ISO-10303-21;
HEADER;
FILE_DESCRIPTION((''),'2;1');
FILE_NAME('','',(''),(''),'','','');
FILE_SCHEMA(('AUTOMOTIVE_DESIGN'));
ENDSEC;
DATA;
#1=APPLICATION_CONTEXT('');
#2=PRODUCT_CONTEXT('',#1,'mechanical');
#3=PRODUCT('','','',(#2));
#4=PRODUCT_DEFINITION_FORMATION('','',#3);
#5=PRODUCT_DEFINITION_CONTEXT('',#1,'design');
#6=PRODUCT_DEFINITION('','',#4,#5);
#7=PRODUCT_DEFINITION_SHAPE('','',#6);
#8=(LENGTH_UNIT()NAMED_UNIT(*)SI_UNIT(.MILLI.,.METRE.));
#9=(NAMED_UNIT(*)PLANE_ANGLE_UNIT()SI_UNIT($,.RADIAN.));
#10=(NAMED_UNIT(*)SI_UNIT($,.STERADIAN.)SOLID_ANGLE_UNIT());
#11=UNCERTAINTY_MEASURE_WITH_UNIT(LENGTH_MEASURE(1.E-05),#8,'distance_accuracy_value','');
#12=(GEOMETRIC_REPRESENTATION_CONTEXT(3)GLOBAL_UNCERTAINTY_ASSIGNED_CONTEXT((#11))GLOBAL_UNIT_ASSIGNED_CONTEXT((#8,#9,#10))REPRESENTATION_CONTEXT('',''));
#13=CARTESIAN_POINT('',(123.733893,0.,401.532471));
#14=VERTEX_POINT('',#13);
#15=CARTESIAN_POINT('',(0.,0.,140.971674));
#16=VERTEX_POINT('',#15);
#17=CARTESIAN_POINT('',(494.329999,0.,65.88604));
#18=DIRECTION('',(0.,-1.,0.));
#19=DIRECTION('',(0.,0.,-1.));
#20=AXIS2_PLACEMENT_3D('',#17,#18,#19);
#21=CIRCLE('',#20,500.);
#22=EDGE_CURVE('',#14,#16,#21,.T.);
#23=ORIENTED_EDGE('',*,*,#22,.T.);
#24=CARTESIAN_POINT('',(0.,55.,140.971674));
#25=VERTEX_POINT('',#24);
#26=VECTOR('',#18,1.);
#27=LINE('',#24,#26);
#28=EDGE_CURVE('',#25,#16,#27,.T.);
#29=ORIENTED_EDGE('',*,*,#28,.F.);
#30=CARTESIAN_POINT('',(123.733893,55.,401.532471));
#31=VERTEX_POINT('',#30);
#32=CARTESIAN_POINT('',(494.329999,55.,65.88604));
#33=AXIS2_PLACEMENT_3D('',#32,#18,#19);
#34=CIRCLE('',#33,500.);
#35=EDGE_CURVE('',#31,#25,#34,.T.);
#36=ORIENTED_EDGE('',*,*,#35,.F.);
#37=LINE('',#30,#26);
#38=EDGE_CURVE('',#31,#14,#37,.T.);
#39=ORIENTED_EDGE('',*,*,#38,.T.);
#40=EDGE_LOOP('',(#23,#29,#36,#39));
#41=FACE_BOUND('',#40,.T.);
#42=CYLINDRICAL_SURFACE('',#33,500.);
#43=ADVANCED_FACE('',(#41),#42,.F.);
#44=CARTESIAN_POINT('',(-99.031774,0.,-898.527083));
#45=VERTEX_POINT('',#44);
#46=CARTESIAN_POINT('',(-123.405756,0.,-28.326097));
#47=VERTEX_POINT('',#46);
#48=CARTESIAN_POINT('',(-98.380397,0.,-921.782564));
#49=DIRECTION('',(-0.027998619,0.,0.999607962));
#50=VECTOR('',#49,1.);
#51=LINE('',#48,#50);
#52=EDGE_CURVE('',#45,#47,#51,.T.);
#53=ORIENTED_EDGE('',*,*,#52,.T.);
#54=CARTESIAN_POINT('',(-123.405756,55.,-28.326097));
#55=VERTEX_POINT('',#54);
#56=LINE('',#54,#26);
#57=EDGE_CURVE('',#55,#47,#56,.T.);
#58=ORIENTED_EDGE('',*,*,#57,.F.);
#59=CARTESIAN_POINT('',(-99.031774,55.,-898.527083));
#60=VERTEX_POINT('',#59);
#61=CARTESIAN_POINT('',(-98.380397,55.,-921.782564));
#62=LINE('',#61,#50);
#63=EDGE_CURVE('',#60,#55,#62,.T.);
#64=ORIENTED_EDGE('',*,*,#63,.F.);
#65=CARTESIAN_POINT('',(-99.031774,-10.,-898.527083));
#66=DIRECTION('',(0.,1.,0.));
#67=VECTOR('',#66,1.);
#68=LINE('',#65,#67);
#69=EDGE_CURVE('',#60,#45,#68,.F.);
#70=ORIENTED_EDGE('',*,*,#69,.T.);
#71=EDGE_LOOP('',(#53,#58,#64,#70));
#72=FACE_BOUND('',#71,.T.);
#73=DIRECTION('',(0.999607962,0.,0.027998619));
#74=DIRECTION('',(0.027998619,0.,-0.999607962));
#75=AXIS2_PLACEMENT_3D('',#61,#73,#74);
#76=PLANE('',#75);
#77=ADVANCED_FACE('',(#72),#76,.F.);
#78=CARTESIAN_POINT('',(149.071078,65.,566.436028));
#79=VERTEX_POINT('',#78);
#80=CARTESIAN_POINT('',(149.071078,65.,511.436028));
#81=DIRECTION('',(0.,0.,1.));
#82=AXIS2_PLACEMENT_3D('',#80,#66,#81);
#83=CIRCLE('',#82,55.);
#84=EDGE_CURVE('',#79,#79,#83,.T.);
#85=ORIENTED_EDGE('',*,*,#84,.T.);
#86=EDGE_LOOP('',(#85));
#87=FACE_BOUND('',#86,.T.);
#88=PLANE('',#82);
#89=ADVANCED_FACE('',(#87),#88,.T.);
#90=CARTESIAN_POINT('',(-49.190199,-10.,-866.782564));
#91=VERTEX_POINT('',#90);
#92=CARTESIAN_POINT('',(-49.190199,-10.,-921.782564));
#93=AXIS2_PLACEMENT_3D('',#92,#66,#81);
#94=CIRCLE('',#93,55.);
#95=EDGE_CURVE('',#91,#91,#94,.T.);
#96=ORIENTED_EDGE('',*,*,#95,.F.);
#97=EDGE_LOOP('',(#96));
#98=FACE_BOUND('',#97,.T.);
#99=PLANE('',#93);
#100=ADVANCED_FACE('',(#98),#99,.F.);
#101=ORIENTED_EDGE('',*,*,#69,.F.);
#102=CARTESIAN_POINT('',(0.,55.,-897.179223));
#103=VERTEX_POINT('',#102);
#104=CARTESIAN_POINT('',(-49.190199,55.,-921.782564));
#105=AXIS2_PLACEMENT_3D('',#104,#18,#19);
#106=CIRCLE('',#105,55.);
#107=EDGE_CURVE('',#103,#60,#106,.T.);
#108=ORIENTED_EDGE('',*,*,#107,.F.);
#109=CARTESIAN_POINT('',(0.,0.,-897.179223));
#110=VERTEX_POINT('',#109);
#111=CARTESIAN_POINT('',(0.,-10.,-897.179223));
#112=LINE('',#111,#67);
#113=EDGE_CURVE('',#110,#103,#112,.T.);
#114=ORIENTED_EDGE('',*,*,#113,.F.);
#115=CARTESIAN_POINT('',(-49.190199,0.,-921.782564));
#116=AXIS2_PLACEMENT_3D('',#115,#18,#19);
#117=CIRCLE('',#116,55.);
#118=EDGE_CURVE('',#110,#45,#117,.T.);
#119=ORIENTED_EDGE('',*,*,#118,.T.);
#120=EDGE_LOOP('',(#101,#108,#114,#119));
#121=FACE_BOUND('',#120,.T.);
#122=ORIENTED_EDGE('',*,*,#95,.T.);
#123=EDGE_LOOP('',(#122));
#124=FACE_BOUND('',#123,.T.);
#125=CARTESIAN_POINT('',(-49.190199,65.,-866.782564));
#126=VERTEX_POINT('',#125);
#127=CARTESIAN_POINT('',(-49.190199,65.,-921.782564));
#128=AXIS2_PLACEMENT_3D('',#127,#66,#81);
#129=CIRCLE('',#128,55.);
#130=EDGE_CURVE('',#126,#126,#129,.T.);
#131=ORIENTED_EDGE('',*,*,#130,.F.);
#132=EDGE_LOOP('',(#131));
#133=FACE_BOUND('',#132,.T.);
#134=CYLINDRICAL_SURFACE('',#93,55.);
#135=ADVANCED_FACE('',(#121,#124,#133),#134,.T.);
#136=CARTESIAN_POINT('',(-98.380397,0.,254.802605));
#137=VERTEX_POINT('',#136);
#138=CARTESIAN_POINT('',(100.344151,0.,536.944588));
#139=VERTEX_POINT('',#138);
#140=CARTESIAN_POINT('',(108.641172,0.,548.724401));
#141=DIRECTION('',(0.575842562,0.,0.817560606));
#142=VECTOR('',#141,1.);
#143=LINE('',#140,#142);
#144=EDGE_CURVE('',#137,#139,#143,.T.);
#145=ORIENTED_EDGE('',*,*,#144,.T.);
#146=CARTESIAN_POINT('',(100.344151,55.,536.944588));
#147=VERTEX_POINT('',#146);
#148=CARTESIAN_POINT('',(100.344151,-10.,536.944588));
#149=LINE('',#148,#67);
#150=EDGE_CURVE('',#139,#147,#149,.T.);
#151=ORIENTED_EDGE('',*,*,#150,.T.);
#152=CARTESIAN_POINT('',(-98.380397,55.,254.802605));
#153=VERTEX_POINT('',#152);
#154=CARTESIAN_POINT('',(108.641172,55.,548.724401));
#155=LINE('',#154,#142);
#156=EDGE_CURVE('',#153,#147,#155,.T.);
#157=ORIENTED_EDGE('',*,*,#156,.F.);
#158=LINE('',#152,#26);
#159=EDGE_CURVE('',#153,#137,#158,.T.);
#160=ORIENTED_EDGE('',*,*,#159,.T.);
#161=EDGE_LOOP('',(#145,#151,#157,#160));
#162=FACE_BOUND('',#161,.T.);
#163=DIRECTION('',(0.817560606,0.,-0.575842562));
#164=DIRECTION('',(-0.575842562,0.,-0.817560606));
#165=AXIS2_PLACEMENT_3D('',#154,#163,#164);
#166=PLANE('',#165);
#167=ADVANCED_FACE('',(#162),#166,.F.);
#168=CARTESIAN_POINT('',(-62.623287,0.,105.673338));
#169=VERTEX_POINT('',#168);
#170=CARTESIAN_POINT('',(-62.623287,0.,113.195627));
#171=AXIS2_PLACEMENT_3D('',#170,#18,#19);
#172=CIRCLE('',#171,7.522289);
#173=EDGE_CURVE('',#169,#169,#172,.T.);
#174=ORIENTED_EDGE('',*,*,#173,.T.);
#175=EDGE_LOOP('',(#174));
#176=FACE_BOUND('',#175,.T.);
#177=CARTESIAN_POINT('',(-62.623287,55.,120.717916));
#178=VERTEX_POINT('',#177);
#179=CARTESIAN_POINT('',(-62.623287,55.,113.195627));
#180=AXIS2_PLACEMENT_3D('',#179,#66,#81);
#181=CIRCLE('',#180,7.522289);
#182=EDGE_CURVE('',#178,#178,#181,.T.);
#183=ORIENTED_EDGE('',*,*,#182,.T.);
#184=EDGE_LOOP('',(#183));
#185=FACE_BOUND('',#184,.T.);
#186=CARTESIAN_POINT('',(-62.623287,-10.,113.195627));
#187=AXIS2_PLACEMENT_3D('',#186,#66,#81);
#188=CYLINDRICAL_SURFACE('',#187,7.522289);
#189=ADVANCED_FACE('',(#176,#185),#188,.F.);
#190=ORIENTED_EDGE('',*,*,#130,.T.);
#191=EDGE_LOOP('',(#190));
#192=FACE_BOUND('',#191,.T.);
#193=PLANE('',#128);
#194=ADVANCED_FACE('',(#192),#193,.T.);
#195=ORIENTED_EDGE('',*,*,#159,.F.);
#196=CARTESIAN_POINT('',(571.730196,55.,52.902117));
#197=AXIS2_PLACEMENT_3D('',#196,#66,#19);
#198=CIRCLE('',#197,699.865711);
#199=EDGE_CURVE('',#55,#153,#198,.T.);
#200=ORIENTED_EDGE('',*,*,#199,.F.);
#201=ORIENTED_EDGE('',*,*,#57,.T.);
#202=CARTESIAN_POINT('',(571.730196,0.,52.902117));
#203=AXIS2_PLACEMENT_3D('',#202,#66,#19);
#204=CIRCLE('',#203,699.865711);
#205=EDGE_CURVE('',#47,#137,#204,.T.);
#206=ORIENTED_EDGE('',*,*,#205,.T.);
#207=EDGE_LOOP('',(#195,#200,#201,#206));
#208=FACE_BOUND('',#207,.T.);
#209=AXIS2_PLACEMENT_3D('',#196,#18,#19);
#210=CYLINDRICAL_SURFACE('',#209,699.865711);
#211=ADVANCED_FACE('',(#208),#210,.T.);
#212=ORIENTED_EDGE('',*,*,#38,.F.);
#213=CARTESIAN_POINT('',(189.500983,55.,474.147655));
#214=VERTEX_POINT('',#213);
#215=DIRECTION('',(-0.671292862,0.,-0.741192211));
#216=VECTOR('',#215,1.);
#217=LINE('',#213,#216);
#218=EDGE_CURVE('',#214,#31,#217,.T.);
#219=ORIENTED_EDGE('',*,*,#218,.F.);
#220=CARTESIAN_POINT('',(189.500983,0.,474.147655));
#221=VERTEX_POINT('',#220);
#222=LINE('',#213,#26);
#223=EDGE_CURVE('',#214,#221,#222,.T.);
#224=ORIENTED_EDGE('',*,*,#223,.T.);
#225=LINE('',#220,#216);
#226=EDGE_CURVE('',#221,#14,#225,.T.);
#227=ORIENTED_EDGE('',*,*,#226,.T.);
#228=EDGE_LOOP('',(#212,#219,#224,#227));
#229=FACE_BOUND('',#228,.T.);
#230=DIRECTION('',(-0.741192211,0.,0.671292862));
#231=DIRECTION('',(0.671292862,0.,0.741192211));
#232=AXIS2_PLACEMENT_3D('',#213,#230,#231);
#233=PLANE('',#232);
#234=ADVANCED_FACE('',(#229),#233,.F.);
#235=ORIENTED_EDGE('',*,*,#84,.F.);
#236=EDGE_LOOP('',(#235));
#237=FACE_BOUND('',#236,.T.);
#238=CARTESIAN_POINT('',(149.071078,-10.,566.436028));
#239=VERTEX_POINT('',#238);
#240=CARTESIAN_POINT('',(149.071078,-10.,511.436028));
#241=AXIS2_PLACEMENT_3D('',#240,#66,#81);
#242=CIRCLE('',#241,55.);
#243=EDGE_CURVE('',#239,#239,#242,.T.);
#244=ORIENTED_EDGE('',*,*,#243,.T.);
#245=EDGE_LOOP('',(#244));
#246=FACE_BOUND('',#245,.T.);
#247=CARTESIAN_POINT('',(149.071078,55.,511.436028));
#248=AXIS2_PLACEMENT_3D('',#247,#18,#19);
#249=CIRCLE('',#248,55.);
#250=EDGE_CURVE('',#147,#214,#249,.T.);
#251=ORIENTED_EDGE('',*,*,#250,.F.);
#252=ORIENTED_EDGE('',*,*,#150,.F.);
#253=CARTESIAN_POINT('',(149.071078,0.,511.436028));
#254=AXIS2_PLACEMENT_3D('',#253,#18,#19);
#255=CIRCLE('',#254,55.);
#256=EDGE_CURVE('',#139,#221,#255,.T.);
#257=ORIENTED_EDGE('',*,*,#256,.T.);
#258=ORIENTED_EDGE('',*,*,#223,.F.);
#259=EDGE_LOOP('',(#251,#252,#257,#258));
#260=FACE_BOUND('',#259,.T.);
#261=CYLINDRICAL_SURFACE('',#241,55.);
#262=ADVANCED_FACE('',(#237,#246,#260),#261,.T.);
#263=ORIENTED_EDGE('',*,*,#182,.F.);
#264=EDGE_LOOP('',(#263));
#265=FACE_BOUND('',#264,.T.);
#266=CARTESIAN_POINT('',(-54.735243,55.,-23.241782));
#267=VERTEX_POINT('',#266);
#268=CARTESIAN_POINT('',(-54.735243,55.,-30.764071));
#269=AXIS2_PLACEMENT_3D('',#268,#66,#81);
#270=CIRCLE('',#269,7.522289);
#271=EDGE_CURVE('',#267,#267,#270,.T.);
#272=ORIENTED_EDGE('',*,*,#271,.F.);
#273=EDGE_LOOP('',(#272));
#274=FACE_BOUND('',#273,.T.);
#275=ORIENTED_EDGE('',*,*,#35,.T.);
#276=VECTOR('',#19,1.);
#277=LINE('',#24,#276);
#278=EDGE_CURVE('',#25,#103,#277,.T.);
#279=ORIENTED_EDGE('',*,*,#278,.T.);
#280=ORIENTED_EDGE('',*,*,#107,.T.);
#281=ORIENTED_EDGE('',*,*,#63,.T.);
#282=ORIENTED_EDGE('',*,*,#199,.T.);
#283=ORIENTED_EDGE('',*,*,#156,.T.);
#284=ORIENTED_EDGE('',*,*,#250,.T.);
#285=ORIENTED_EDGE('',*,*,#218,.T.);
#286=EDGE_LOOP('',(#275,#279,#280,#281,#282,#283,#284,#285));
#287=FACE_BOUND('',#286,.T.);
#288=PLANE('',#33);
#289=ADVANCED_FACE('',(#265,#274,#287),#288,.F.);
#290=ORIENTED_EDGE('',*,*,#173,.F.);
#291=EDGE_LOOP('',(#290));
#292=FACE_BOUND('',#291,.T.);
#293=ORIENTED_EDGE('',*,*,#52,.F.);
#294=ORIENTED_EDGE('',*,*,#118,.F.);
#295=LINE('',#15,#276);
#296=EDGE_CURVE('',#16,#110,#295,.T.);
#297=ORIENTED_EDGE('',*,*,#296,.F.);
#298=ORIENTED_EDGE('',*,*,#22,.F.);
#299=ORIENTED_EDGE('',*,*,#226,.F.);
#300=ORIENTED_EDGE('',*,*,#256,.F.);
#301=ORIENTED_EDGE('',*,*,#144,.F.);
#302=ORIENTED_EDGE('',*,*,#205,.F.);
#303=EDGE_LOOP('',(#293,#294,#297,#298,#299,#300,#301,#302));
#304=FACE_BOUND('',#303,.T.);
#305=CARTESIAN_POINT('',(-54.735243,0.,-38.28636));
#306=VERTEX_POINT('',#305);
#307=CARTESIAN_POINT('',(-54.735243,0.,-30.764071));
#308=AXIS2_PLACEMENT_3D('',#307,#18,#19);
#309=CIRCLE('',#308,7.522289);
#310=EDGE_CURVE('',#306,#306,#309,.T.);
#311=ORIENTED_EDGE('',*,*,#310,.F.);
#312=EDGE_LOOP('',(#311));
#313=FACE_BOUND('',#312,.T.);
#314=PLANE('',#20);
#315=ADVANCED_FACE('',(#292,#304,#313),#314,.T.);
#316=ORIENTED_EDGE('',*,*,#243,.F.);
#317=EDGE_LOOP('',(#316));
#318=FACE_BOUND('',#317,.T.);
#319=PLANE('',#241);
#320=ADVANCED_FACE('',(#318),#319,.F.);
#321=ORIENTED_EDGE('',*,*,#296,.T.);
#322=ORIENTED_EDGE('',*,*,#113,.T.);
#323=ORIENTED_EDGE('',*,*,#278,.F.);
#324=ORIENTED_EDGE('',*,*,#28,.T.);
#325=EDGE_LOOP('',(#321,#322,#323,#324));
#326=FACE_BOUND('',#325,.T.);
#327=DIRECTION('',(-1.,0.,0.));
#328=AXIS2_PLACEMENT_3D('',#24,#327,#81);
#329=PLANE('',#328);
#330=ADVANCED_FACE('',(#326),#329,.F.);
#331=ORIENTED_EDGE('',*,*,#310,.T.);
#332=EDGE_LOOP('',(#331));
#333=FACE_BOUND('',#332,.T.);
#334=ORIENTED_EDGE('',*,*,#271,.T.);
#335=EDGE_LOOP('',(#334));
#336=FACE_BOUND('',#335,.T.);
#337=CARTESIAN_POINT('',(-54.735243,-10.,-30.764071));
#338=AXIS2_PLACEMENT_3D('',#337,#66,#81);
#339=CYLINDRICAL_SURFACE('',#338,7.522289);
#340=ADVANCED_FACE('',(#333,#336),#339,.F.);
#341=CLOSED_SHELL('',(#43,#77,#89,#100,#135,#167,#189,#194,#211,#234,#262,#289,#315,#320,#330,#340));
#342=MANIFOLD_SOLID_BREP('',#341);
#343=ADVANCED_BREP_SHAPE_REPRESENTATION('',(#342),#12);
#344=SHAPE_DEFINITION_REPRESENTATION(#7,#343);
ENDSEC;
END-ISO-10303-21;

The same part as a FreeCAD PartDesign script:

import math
import FreeCAD as App
import Part
import Sketcher
from FreeCAD import Vector
Q = App.Units.Quantity

doc = App.newDocument("Part")
body = doc.addObject("PartDesign::Body", "Body")

sketch1 = body.newObject("Sketcher::SketchObject", "Sketch")
sketch1.AttachmentSupport = (doc.getObject("XZ_Plane"), [""])
sketch1.MapMode = "FlatFace"
sketch1.addGeometry(Part.LineSegment(Vector(0, 140.971674, 0), Vector(0, -921.782564, 0)), False)
sketch1.addGeometry(Part.LineSegment(Vector(0, -921.782564, 0), Vector(-98.380397, -921.782564, 0)), False)
sketch1.addGeometry(Part.LineSegment(Vector(-98.380397, -921.782564, 0), Vector(-123.405756, -28.326097, 0)), False)
sketch1.addGeometry(Part.ArcOfCircle(Part.Circle(Vector(571.730196, 52.902117, 0), Vector(0, 0, 1), 699.865711), math.radians(163.232746), math.radians(186.664916)), False)
sketch1.addGeometry(Part.LineSegment(Vector(-98.380397, 254.802605, 0), Vector(108.641172, 548.724401, 0)), False)
sketch1.addGeometry(Part.LineSegment(Vector(108.641172, 548.724401, 0), Vector(189.500983, 474.147655, 0)), False)
sketch1.addGeometry(Part.LineSegment(Vector(189.500983, 474.147655, 0), Vector(123.733893, 401.532471, 0)), False)
sketch1.addGeometry(Part.ArcOfCircle(Part.Circle(Vector(494.329999, 65.88604, 0), Vector(0, 0, 1), 500), math.radians(137.833073), math.radians(171.363148)), False)
sketch1.addConstraint(Sketcher.Constraint("Coincident", 0, 2, 1, 1))
sketch1.addConstraint(Sketcher.Constraint("Coincident", 1, 2, 2, 1))
sketch1.addConstraint(Sketcher.Constraint("Coincident", 2, 2, 3, 2))
sketch1.addConstraint(Sketcher.Constraint("Coincident", 3, 1, 4, 1))
sketch1.addConstraint(Sketcher.Constraint("Coincident", 4, 2, 5, 1))
sketch1.addConstraint(Sketcher.Constraint("Coincident", 5, 2, 6, 1))
sketch1.addConstraint(Sketcher.Constraint("Tangent", 6, 2, 7, 1))
sketch1.addConstraint(Sketcher.Constraint("Coincident", 7, 2, 0, 1))
sketch1.addConstraint(Sketcher.Constraint("Vertical", 0))
sketch1.addConstraint(Sketcher.Constraint("Horizontal", 1))
sketch1.addConstraint(Sketcher.Constraint("PointOnObject", 0, 2, -2))
sketch1.addConstraint(Sketcher.Constraint("Vertical", 1, 2, 3, 1))
sketch1.addConstraint(Sketcher.Constraint("Radius", 7, Q("500 mm")))
sketch1.addConstraint(Sketcher.Constraint("Distance", 5, Q("110 mm")))
sketch1.addConstraint(Sketcher.Constraint("DistanceX", -1, 1, 7, 3, Q("494.329999 mm")))
sketch1.addConstraint(Sketcher.Constraint("Radius", 3, Q("699.865711 mm")))
sketch1.addConstraint(Sketcher.Constraint("DistanceY", -1, 1, 4, 2, Q("548.724401 mm")))
sketch1.addConstraint(Sketcher.Constraint("DistanceY", 2, 2, 4, 2, Q("577.050498 mm")))
sketch1.addConstraint(Sketcher.Constraint("DistanceX", 1, 2, 1, 1, Q("98.380397 mm")))
sketch1.addConstraint(Sketcher.Constraint("DistanceY", 0, 2, 0, 1, Q("1062.754238 mm")))
sketch1.addConstraint(Sketcher.Constraint("DistanceY", -1, 1, 7, 3, Q("65.88604 mm")))
sketch1.addConstraint(Sketcher.Constraint("DistanceY", -1, 1, 6, 2, Q("401.532471 mm")))
sketch1.addConstraint(Sketcher.Constraint("DistanceY", 0, 2, 3, 3, Q("974.684681 mm")))
sketch1.addConstraint(Sketcher.Constraint("DistanceX", 2, 2, 1, 2, Q("25.025358 mm")))
sketch1.addConstraint(Sketcher.Constraint("DistanceX", 2, 2, 4, 2, Q("232.046928 mm")))
pad1 = body.newObject("PartDesign::Pad", "Pad")
pad1.Profile = sketch1
pad1.Length = 55
pad1.Reversed = True

sketch2 = body.newObject("Sketcher::SketchObject", "Sketch001")
sketch2.AttachmentSupport = (doc.getObject("XZ_Plane"), [""])
sketch2.MapMode = "FlatFace"
sketch2.AttachmentOffset = App.Placement(Vector(0, 0, -55), App.Rotation())
sketch2.addGeometry(Part.Circle(Vector(149.071078, 511.436028, 0), Vector(0, 0, 1), 55), False)
sketch2.addGeometry(Part.Circle(Vector(-49.190199, -921.782564, 0), Vector(0, 0, 1), 55), False)
sketch2.addConstraint(Sketcher.Constraint("Equal", 0, 1))
sketch2.addConstraint(Sketcher.Constraint("Diameter", 0, Q("110 mm")))
sketch2.addConstraint(Sketcher.Constraint("DistanceX", 1, 3, -1, 1, Q("49.190199 mm")))
sketch2.addConstraint(Sketcher.Constraint("DistanceY", 1, 3, 0, 3, Q("1433.218591 mm")))
sketch2.addConstraint(Sketcher.Constraint("DistanceX", -1, 1, 0, 3, Q("149.071078 mm")))
sketch2.addConstraint(Sketcher.Constraint("DistanceY", -1, 1, 0, 3, Q("511.436028 mm")))
pad2 = body.newObject("PartDesign::Pad", "Pad001")
pad2.Profile = sketch2
pad2.Type = "TwoLengths"
pad2.Length = 10
pad2.Length2 = 65
pad2.Reversed = True

sketch3 = body.newObject("Sketcher::SketchObject", "Sketch002")
sketch3.AttachmentSupport = (doc.getObject("XZ_Plane"), [""])
sketch3.MapMode = "FlatFace"
sketch3.AttachmentOffset = App.Placement(Vector(0, 0, -55), App.Rotation())
sketch3.addGeometry(Part.Circle(Vector(-54.735243, -30.764071, 0), Vector(0, 0, 1), 7.522289), False)
sketch3.addGeometry(Part.Circle(Vector(-62.623287, 113.195627, 0), Vector(0, 0, 1), 7.522289), False)
sketch3.addConstraint(Sketcher.Constraint("Equal", 0, 1))
sketch3.addConstraint(Sketcher.Constraint("Diameter", 0, Q("15.044578 mm")))
sketch3.addConstraint(Sketcher.Constraint("DistanceY", 0, 3, 1, 3, Q("143.959698 mm")))
sketch3.addConstraint(Sketcher.Constraint("DistanceY", 0, 3, -1, 1, Q("30.764071 mm")))
sketch3.addConstraint(Sketcher.Constraint("DistanceX", 0, 3, -1, 1, Q("54.735243 mm")))
sketch3.addConstraint(Sketcher.Constraint("DistanceX", 1, 3, -1, 1, Q("62.623287 mm")))
pocket1 = body.newObject("PartDesign::Pocket", "Pocket")
pocket1.Profile = sketch3
pocket1.Type = "ThroughAll"
pocket1.Reversed = True

doc.recompute()
